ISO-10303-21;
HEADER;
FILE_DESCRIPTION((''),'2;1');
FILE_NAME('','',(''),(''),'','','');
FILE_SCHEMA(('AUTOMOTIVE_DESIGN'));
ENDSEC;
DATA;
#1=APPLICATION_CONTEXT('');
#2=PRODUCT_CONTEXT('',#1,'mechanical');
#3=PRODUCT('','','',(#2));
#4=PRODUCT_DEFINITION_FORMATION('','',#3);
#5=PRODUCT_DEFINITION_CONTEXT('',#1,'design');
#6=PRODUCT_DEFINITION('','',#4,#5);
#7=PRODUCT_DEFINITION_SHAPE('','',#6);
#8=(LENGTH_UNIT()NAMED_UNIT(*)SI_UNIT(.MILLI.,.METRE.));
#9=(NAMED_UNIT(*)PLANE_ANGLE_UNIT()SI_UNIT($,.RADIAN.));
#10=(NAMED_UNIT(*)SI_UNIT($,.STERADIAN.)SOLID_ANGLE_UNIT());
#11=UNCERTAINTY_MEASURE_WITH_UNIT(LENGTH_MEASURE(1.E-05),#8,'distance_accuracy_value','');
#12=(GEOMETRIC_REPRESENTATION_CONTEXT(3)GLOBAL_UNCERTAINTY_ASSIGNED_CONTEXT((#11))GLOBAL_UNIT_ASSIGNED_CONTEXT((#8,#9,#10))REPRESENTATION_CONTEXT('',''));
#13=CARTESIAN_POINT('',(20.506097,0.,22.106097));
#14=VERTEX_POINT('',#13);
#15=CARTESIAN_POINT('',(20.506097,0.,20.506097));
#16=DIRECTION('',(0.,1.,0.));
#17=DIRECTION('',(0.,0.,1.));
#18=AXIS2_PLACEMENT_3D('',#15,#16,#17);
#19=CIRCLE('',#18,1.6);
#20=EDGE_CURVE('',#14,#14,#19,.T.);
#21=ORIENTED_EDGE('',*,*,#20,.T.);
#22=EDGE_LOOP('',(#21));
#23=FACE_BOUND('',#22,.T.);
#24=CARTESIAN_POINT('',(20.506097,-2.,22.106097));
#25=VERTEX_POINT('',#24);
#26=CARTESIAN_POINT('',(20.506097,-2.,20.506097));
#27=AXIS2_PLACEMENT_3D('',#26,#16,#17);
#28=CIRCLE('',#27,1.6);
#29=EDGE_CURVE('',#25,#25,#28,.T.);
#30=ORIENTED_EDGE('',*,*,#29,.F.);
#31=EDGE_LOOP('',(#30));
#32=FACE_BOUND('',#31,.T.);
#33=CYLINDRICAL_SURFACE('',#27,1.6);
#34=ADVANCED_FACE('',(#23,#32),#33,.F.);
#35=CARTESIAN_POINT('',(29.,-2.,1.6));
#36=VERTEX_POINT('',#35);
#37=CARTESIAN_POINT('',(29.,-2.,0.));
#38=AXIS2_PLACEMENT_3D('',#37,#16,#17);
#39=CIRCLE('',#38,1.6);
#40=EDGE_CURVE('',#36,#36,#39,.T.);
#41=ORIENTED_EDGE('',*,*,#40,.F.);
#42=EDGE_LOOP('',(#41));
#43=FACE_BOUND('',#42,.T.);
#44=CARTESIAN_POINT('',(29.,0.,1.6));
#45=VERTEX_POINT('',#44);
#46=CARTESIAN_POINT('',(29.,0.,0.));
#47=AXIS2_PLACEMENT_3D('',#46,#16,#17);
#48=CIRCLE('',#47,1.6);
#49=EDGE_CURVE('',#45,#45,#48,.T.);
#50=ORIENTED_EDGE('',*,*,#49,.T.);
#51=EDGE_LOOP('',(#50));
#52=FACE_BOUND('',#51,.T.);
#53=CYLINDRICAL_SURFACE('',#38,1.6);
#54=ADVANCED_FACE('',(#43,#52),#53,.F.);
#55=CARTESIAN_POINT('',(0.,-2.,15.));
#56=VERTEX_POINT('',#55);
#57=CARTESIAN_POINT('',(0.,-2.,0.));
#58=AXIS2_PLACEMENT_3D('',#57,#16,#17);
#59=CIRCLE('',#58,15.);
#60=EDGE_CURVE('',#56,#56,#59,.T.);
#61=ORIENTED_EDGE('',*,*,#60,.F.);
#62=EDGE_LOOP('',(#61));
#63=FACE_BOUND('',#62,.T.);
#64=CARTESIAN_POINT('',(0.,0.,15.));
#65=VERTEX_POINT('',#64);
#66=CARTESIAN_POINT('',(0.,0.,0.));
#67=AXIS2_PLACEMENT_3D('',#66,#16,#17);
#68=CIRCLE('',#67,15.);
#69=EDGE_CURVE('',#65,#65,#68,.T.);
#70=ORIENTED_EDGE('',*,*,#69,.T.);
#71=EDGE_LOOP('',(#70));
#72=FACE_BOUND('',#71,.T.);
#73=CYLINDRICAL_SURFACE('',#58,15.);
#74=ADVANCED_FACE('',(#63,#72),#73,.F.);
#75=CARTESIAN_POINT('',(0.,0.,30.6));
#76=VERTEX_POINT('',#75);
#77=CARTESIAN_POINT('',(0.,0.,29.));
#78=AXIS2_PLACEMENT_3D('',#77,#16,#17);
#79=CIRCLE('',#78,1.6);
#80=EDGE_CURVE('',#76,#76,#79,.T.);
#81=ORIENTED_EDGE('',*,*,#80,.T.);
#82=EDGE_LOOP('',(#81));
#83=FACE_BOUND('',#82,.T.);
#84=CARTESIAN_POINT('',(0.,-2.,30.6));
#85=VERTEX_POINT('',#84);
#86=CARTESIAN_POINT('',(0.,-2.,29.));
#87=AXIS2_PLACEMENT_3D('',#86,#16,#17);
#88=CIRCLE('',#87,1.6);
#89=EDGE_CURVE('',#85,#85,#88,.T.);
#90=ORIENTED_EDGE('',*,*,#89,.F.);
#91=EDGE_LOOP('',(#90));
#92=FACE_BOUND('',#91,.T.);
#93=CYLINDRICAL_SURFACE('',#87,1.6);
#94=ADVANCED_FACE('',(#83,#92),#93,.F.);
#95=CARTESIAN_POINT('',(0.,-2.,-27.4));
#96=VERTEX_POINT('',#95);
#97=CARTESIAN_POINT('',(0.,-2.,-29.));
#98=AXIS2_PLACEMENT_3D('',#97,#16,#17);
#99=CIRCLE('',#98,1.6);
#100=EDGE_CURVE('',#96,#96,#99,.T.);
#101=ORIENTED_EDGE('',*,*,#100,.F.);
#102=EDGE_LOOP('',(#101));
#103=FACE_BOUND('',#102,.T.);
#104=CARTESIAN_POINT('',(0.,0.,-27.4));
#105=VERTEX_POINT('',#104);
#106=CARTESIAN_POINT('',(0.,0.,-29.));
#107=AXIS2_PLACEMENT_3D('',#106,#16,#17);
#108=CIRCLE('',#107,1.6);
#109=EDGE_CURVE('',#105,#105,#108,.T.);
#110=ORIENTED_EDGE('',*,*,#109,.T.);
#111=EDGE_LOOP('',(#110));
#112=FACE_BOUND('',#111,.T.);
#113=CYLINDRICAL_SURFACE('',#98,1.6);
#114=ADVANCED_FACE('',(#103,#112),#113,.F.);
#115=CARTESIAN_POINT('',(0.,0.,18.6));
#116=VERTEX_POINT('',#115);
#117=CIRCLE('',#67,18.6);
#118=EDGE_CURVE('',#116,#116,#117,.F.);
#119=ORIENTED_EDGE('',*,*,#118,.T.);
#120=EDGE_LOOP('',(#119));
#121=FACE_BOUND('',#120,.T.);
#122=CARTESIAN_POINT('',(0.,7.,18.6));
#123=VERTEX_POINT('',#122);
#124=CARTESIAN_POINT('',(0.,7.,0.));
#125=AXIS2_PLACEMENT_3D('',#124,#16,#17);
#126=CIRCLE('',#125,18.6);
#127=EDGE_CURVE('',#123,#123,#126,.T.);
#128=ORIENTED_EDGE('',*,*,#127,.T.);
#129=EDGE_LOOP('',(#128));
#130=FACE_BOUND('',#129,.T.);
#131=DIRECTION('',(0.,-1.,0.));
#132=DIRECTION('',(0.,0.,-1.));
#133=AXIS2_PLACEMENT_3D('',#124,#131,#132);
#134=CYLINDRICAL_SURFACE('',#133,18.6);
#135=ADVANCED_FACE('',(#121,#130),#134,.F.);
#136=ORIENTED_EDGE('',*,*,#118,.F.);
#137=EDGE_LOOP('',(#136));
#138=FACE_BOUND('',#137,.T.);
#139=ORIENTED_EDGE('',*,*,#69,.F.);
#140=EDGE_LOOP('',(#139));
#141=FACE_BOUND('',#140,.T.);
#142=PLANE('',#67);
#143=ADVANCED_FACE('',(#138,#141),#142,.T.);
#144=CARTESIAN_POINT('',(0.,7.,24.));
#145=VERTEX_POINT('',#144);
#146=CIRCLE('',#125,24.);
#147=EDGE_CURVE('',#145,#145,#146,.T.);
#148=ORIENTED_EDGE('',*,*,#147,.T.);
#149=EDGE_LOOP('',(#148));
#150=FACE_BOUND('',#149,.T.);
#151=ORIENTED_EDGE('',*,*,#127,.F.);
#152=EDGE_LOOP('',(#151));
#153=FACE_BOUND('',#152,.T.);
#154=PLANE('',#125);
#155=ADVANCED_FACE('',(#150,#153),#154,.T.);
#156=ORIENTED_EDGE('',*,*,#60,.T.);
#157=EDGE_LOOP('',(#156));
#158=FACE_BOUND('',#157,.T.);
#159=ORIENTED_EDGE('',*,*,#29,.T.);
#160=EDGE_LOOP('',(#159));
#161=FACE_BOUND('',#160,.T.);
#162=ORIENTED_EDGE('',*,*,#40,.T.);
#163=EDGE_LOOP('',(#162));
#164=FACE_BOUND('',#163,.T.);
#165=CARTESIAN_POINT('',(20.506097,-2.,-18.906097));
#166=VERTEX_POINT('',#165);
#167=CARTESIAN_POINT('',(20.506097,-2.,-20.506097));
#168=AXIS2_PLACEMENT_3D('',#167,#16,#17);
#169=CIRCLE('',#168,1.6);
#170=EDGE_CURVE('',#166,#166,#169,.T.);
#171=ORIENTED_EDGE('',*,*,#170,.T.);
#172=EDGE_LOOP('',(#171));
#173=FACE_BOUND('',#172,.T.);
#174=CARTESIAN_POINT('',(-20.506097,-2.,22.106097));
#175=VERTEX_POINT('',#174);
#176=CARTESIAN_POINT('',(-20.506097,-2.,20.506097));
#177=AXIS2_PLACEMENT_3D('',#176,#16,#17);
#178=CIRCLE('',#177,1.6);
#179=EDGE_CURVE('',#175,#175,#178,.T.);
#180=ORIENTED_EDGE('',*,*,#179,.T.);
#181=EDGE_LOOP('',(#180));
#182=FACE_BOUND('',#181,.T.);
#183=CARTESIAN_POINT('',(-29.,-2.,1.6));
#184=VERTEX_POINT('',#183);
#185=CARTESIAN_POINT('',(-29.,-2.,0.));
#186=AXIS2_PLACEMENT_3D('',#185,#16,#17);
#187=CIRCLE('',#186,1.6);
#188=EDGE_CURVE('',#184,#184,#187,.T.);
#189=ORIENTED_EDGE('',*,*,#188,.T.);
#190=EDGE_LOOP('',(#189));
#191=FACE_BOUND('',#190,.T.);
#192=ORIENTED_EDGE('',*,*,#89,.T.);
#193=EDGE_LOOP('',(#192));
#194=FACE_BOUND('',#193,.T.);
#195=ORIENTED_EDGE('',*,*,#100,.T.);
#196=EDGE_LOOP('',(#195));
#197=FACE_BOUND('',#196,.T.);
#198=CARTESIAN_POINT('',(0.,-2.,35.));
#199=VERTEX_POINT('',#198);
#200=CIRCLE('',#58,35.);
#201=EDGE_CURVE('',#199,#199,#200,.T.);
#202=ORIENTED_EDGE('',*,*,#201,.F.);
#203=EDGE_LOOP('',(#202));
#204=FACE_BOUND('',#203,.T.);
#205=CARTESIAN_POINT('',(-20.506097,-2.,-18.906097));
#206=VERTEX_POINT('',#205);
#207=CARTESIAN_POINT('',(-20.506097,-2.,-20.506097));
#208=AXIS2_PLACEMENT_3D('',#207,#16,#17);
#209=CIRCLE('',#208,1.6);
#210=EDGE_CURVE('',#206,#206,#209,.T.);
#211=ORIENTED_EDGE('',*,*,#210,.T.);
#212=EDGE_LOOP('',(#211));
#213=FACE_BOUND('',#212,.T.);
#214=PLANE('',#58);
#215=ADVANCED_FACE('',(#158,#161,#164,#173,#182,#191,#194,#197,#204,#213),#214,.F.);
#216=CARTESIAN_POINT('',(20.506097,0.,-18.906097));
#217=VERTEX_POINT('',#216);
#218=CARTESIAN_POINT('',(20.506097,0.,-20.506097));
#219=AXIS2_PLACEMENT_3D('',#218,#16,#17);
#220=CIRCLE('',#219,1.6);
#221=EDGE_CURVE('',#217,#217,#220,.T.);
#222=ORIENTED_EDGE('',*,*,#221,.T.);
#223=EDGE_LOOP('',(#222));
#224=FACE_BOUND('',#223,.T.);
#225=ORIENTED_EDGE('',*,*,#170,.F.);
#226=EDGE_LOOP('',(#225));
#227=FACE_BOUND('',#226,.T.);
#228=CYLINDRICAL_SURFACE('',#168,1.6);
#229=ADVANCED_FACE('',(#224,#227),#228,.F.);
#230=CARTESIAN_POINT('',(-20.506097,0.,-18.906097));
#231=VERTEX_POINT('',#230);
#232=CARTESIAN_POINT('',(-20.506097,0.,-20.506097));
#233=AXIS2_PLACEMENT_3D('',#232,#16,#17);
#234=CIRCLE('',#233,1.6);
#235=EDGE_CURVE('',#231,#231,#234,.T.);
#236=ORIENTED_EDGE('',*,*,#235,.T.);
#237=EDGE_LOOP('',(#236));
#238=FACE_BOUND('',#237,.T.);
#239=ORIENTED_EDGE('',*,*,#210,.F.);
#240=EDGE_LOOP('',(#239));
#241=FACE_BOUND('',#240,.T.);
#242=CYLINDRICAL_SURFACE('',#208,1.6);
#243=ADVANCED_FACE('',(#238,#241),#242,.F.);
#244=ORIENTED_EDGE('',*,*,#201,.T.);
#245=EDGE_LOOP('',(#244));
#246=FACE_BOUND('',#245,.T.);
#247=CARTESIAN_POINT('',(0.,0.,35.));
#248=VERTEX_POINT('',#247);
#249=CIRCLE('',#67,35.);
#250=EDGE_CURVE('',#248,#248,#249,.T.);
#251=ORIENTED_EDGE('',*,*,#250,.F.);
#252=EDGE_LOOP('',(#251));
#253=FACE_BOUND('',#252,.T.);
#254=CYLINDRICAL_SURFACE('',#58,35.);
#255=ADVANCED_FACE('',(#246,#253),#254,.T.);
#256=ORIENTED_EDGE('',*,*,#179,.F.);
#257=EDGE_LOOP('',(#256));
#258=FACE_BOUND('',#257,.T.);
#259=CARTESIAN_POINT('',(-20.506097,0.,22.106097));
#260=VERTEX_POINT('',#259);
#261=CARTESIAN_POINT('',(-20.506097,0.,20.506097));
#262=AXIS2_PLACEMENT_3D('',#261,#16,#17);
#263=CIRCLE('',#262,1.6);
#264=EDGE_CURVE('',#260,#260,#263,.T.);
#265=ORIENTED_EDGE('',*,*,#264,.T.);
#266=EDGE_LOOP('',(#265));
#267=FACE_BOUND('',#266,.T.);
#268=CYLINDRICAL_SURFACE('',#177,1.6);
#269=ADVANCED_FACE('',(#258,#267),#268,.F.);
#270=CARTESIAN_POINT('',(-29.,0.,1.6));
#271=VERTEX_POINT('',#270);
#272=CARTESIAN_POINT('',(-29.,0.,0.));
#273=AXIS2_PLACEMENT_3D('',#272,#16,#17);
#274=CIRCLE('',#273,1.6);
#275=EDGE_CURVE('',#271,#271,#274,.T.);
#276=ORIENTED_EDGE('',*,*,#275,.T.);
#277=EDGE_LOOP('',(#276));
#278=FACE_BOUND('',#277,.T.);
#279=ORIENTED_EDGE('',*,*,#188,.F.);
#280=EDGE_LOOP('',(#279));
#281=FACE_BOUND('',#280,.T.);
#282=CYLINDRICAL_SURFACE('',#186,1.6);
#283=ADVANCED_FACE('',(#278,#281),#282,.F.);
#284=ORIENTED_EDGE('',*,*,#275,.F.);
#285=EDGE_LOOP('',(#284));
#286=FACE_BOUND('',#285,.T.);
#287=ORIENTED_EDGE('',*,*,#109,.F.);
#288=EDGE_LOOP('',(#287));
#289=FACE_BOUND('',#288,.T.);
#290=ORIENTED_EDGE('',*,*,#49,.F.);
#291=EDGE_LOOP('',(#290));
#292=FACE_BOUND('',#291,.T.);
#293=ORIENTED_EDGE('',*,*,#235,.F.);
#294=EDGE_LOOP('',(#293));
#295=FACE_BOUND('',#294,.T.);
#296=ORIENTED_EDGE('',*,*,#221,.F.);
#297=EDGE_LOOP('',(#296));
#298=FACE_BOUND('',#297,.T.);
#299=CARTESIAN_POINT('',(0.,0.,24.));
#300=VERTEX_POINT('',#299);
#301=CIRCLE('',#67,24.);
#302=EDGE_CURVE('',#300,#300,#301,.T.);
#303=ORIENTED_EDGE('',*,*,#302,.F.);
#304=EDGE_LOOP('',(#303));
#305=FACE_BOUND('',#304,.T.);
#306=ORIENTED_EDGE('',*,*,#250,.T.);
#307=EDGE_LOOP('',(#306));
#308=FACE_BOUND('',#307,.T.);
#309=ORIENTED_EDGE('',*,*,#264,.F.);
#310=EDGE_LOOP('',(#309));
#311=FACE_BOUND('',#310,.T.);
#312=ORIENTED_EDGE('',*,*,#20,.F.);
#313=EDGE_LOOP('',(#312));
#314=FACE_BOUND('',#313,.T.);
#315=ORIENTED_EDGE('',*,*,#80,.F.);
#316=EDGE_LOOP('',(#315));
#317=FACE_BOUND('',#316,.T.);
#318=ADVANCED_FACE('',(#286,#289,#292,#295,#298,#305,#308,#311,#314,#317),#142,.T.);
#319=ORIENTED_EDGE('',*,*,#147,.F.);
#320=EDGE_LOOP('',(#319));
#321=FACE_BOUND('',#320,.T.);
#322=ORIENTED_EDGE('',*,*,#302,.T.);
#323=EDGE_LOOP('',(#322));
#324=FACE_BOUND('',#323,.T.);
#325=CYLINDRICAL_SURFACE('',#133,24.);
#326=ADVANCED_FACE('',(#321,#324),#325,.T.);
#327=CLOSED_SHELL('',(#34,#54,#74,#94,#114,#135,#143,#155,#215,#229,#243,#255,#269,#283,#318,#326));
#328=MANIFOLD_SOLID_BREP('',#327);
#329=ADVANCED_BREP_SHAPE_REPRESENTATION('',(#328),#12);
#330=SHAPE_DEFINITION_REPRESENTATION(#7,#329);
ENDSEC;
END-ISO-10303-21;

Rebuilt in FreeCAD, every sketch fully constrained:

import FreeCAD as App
import Part
import Sketcher

V = App.Vector

doc = App.newDocument("Part")
params = doc.addObject("Spreadsheet::Sheet", "Params")
for row, (alias, value) in enumerate([
    ("sketch1_diameter", "70 mm"),
    ("sketch1_diameter2", "30 mm"),
    ("sketch1_diameter3", "3.2 mm"),
    ("pad1_length", "2 mm"),
    ("sketch2_diameter", "48 mm"),
    ("sketch2_diameter2", "37.2 mm"),
    ("pad2_length", "7 mm"),
], start=1):
    params.set(f"A{row}", alias)
    params.set(f"B{row}", "=" + value)
    params.setAlias(f"B{row}", alias)

body = doc.addObject("PartDesign::Body", "Body")

sketch1 = body.newObject("Sketcher::SketchObject", "Sketch")
sketch1.AttachmentSupport = (doc.getObject("XZ_Plane"), [""])
sketch1.MapMode = "FlatFace"
sketch1.addGeometry([
    Part.Circle(V(0, 0, 0), V(0, 0, 1), 35),
    Part.Circle(V(-20.5, -20.5, 0), V(0, 0, 1), 1.6),
    Part.Circle(V(-29, 0, 0), V(0, 0, 1), 1.6),
    Part.Circle(V(-20.5, 20.5, 0), V(0, 0, 1), 1.6),
    Part.Circle(V(0, -29, 0), V(0, 0, 1), 1.6),
    Part.Circle(V(20.5, -20.5, 0), V(0, 0, 1), 1.6),
    Part.Circle(V(0, 0, 0), V(0, 0, 1), 15),
    Part.Circle(V(0, 29, 0), V(0, 0, 1), 1.6),
    Part.Circle(V(29, 0, 0), V(0, 0, 1), 1.6),
    Part.Circle(V(20.5, 20.5, 0), V(0, 0, 1), 1.6),
], False)
sketch1.addConstraint([
    Sketcher.Constraint("Coincident", 0, 3, -1, 1),
    Sketcher.Constraint("Coincident", 6, 3, -1, 1),
    Sketcher.Constraint("Equal", 1, 2),
    Sketcher.Constraint("Equal", 2, 3),
    Sketcher.Constraint("Equal", 3, 4),
    Sketcher.Constraint("Equal", 4, 5),
    Sketcher.Constraint("Equal", 5, 7),
    Sketcher.Constraint("Equal", 7, 8),
    Sketcher.Constraint("Equal", 8, 9),
    Sketcher.Constraint("Symmetric", 3, 3, 5, 3, -1, 1),
    Sketcher.Constraint("Symmetric", 4, 3, 7, 3, -1, 1),
    Sketcher.Constraint("Symmetric", 2, 3, 8, 3, -1, 1),
    Sketcher.Constraint("Symmetric", 1, 3, 9, 3, -1, 1),
    Sketcher.Constraint("Symmetric", 1, 3, 5, 3, -2),
    Sketcher.Constraint("PointOnObject", 2, 3, -1),
    Sketcher.Constraint("PointOnObject", 4, 3, -2),
    Sketcher.Constraint("Diameter", 0, 70.0),
    Sketcher.Constraint("Diameter", 6, 30.0),
    Sketcher.Constraint("Diameter", 1, 3.2),
    Sketcher.Constraint("DistanceX", 2, 3, -1, 1, 29.0),
    Sketcher.Constraint("DistanceY", 4, 3, -1, 1, 29.0),
    Sketcher.Constraint("DistanceX", 1, 3, -1, 1, 20.506097),
    Sketcher.Constraint("DistanceY", 1, 3, -1, 1, 20.506097),
])
sketch1.setExpression("Constraints[16]", "Params.sketch1_diameter")
sketch1.setExpression("Constraints[17]", "Params.sketch1_diameter2")
sketch1.setExpression("Constraints[18]", "Params.sketch1_diameter3")
pad1 = body.newObject("PartDesign::Pad", "Pad")
pad1.Profile = sketch1
pad1.setExpression("Length", "Params.pad1_length")

sketch2 = body.newObject("Sketcher::SketchObject", "Sketch001")
sketch2.AttachmentSupport = (doc.getObject("XZ_Plane"), [""])
sketch2.MapMode = "FlatFace"
sketch2.addGeometry([
    Part.Circle(V(0, 0, 0), V(0, 0, 1), 24),
    Part.Circle(V(0, 0, 0), V(0, 0, 1), 19),
], False)
sketch2.addConstraint([
    Sketcher.Constraint("Coincident", 0, 3, -1, 1),
    Sketcher.Constraint("Coincident", 1, 3, -1, 1),
    Sketcher.Constraint("Diameter", 0, 48.0),
    Sketcher.Constraint("Diameter", 1, 37.2),
])
sketch2.setExpression("Constraints[2]", "Params.sketch2_diameter")
sketch2.setExpression("Constraints[3]", "Params.sketch2_diameter2")
pad2 = body.newObject("PartDesign::Pad", "Pad001")
pad2.Profile = sketch2
pad2.setExpression("Length", "Params.pad2_length")
pad2.Reversed = True

doc.recompute()
